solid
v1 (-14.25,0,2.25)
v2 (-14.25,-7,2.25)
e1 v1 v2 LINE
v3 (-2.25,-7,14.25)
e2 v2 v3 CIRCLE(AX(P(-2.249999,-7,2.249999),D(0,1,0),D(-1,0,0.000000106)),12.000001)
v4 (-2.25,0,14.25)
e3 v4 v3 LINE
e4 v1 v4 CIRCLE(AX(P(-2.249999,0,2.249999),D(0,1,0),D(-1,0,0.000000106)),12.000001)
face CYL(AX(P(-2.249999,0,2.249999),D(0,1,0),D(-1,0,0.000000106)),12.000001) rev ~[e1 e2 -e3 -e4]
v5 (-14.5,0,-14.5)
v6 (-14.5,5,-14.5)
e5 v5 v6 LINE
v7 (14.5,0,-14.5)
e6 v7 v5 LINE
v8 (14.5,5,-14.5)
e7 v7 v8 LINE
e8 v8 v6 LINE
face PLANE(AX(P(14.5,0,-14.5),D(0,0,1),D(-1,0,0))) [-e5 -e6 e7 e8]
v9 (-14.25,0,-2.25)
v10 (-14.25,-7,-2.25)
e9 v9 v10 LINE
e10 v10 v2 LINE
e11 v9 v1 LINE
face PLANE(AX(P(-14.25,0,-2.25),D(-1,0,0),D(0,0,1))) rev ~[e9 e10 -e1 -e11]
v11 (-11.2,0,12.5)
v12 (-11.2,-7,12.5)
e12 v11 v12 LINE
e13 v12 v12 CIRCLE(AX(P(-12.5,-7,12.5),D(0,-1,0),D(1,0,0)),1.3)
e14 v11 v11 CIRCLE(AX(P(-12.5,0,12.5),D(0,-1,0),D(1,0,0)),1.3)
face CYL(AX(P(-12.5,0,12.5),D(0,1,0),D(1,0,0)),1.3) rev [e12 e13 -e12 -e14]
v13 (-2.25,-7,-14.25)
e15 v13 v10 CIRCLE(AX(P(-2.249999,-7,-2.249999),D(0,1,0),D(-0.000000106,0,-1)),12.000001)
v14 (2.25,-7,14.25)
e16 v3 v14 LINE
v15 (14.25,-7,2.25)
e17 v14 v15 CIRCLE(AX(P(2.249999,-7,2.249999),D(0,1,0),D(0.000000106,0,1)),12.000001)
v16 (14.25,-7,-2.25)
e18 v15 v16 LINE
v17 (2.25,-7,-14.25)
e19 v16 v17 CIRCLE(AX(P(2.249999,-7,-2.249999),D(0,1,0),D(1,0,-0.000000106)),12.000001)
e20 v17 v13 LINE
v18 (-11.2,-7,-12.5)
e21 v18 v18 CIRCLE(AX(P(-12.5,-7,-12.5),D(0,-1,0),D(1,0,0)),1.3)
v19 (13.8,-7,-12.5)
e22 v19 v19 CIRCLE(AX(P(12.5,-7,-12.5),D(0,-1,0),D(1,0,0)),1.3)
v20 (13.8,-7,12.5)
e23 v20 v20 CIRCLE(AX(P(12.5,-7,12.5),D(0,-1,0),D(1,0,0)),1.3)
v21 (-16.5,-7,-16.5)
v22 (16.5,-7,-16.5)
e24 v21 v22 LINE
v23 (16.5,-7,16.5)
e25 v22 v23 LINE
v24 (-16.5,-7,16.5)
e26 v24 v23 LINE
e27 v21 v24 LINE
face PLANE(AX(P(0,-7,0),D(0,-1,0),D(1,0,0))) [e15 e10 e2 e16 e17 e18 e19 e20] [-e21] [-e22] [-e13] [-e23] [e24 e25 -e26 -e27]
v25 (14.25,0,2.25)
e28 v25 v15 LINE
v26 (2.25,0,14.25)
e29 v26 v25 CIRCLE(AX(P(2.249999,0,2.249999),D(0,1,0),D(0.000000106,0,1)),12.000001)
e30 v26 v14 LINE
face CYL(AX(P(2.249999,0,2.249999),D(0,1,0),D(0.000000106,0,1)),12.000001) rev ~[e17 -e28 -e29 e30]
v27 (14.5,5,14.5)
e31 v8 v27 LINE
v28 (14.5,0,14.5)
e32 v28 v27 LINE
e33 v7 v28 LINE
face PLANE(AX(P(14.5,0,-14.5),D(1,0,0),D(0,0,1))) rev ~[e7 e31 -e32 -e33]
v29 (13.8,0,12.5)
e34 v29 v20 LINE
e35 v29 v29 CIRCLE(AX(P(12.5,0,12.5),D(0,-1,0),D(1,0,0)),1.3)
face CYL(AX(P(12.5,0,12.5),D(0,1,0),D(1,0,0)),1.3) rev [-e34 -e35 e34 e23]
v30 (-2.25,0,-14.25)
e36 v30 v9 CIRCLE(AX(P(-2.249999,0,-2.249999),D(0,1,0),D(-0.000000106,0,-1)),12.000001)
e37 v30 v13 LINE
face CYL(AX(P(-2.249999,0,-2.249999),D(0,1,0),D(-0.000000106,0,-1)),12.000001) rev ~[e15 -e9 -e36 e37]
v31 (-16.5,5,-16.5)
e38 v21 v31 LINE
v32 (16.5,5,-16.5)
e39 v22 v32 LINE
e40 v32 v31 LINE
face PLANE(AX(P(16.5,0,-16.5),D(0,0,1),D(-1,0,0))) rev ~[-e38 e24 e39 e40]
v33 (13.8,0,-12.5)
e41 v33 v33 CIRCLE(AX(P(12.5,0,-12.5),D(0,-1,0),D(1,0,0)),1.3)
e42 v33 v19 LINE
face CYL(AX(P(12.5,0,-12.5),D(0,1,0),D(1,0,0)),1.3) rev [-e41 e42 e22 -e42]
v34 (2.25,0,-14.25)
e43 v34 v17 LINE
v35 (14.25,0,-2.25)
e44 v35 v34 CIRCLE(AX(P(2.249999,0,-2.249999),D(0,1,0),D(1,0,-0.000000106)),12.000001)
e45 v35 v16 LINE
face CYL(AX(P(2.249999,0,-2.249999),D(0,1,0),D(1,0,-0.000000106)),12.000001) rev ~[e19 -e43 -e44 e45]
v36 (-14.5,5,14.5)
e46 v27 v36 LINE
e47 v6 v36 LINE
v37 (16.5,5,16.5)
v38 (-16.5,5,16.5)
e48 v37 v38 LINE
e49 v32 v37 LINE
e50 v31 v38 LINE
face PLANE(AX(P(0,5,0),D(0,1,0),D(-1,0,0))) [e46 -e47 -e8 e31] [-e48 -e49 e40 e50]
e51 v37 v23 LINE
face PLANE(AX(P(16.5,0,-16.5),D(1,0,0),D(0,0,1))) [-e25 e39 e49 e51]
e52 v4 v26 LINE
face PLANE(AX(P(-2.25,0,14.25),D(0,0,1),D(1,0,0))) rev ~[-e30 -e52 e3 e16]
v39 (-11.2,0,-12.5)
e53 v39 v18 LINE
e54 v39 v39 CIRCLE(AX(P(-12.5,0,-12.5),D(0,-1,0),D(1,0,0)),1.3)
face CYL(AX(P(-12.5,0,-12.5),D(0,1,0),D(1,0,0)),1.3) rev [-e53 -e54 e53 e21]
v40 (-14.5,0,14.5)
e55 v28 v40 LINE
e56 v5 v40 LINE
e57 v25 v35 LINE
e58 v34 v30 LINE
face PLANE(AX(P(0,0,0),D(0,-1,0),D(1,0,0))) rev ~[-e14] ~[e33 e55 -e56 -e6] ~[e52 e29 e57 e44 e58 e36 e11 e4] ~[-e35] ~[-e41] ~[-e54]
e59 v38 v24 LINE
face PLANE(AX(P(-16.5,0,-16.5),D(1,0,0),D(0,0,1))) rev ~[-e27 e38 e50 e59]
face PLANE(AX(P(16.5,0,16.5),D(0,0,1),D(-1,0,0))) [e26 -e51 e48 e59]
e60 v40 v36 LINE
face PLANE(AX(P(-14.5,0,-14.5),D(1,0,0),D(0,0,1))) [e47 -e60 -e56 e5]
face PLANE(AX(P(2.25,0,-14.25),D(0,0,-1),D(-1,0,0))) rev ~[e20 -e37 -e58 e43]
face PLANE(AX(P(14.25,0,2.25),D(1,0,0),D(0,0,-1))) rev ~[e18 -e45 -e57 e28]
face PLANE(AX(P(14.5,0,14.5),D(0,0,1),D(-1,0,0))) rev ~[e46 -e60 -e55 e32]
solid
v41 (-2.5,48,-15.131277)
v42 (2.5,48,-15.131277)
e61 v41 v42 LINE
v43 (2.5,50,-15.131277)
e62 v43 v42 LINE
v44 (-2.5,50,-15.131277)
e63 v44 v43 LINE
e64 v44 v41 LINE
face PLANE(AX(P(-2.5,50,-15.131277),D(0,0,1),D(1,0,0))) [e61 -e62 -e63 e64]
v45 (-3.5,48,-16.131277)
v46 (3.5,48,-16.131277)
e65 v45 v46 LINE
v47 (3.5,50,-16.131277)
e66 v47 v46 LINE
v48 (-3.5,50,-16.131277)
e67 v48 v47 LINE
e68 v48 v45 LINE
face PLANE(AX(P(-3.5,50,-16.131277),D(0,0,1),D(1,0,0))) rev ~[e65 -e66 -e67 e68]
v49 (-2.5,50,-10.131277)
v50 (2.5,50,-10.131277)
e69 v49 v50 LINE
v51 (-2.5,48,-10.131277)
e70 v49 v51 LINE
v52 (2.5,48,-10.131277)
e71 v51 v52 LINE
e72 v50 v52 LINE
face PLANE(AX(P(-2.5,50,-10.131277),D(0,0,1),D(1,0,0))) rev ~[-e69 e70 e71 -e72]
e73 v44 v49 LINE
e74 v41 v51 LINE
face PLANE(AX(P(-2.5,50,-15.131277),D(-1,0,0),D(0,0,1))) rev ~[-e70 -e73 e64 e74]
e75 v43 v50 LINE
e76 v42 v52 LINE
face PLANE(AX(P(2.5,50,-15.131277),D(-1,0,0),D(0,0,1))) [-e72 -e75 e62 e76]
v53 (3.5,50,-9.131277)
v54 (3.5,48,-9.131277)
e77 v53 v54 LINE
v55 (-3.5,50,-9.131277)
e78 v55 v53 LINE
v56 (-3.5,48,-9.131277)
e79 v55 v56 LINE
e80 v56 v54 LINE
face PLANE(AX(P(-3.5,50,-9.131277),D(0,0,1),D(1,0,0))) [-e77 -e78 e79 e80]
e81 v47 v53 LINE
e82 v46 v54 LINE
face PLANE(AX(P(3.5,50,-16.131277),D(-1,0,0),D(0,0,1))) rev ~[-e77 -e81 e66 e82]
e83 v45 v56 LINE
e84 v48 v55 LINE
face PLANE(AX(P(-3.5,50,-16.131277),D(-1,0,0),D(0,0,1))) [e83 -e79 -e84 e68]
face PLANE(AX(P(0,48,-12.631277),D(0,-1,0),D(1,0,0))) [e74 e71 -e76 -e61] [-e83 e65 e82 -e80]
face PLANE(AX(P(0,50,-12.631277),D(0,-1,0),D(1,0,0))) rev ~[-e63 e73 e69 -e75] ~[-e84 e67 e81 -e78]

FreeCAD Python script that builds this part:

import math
import FreeCAD as App
import Part
import Sketcher
Q = App.Units.Quantity

doc = App.newDocument("Part")
body = doc.addObject("PartDesign::Body", "Body")

sketch1 = body.newObject("Sketcher::SketchObject", "Sketch")
sketch1.AttachmentSupport = (doc.getObject("XZ_Plane"), [""])
sketch1.MapMode = "FlatFace"
sketch1.addGeometry([
    Part.LineSegment(App.Vector(-16.5, 16.5, 0), App.Vector(-16.5, -16.5, 0)),
    Part.LineSegment(App.Vector(-16.5, -16.5, 0), App.Vector(16.5, -16.5, 0)),
    Part.LineSegment(App.Vector(16.5, -16.5, 0), App.Vector(16.5, 16.5, 0)),
    Part.LineSegment(App.Vector(16.5, 16.5, 0), App.Vector(-16.5, 16.5, 0)),
    Part.Circle(App.Vector(-12.5, -12.5, 0), App.Vector(0, 0, 1), 1.3),
    Part.Circle(App.Vector(12.5, -12.5, 0), App.Vector(0, 0, 1), 1.3),
    Part.Circle(App.Vector(-12.5, 12.5, 0), App.Vector(0, 0, 1), 1.3),
    Part.LineSegment(App.Vector(14.2, 2.2, 0), App.Vector(14.2, -2.2, 0)),
    Part.ArcOfCircle(Part.Circle(App.Vector(2.2, -2.2, 0), App.Vector(0, 0, 1), 12), math.radians(-90), math.radians(0)),
    Part.LineSegment(App.Vector(2.2, -14.2, 0), App.Vector(-2.2, -14.2, 0)),
    Part.ArcOfCircle(Part.Circle(App.Vector(-2.2, -2.2, 0), App.Vector(0, 0, 1), 12), math.radians(-180), math.radians(-90)),
    Part.LineSegment(App.Vector(-14.2, -2.2, 0), App.Vector(-14.2, 2.2, 0)),
    Part.ArcOfCircle(Part.Circle(App.Vector(-2.2, 2.2, 0), App.Vector(0, 0, 1), 12), math.radians(90), math.radians(180)),
    Part.LineSegment(App.Vector(-2.2, 14.2, 0), App.Vector(2.2, 14.2, 0)),
    Part.ArcOfCircle(Part.Circle(App.Vector(2.2, 2.2, 0), App.Vector(0, 0, 1), 12), math.radians(0), math.radians(90)),
    Part.Circle(App.Vector(12.5, 12.5, 0), App.Vector(0, 0, 1), 1.3),
], False)
sketch1.addConstraint([
    Sketcher.Constraint("Coincident", 0, 2, 1, 1),
    Sketcher.Constraint("Coincident", 1, 2, 2, 1),
    Sketcher.Constraint("Coincident", 2, 2, 3, 1),
    Sketcher.Constraint("Coincident", 3, 2, 0, 1),
    Sketcher.Constraint("Tangent", 7, 2, 8, 2),
    Sketcher.Constraint("Tangent", 8, 1, 9, 1),
    Sketcher.Constraint("Tangent", 9, 2, 10, 2),
    Sketcher.Constraint("Tangent", 10, 1, 11, 1),
    Sketcher.Constraint("Tangent", 11, 2, 12, 2),
    Sketcher.Constraint("Tangent", 12, 1, 13, 1),
    Sketcher.Constraint("Tangent", 13, 2, 14, 2),
    Sketcher.Constraint("Tangent", 14, 1, 7, 1),
    Sketcher.Constraint("Vertical", 0),
    Sketcher.Constraint("Horizontal", 1),
    Sketcher.Constraint("Vertical", 2),
    Sketcher.Constraint("Horizontal", 3),
    Sketcher.Constraint("Vertical", 7),
    Sketcher.Constraint("Horizontal", 9),
    Sketcher.Constraint("Vertical", 11),
    Sketcher.Constraint("Horizontal", 13),
    Sketcher.Constraint("Equal", 4, 5),
    Sketcher.Constraint("Equal", 5, 6),
    Sketcher.Constraint("Equal", 8, 10),
    Sketcher.Constraint("Equal", 10, 12),
    Sketcher.Constraint("Equal", 12, 14),
    Sketcher.Constraint("Equal", 6, 15),
    Sketcher.Constraint("Symmetric", 5, 3, 6, 3, -1, 1),
    Sketcher.Constraint("Symmetric", 8, 3, 12, 3, -1, 1),
    Sketcher.Constraint("Symmetric", 4, 3, 15, 3, -1, 1),
    Sketcher.Constraint("Symmetric", 0, 2, 2, 2, -1, 1),
    Sketcher.Constraint("Symmetric", 4, 3, 5, 3, -2),
    Sketcher.Constraint("Equal", 3, 0),
    Sketcher.Constraint("Equal", 13, 7),
    Sketcher.Constraint("Radius", 8, Q("12.000001 mm")),
    Sketcher.Constraint("Diameter", 4, Q("2.6 mm")),
    Sketcher.Constraint("DistanceX", 1, 1, 1, 2, Q("33 mm")),
    Sketcher.Constraint("DistanceX", 9, 2, 9, 1, Q("4.5 mm")),
    Sketcher.Constraint("DistanceX", 4, 3, 5, 3, Q("25 mm")),
    Sketcher.Constraint("DistanceY", 4, 3, 6, 3, Q("25 mm")),
])
pad1 = body.newObject("PartDesign::Pad", "Pad")
pad1.Profile = sketch1
pad1.Length = 7

sketch2 = body.newObject("Sketcher::SketchObject", "Sketch001")
sketch2.AttachmentSupport = (doc.getObject("XZ_Plane"), [""])
sketch2.MapMode = "FlatFace"
sketch2.addGeometry([
    Part.LineSegment(App.Vector(16, 16, 0), App.Vector(16, -16, 0)),
    Part.LineSegment(App.Vector(16, -16, 0), App.Vector(-16, -16, 0)),
    Part.LineSegment(App.Vector(-16, -16, 0), App.Vector(-16, 16, 0)),
    Part.LineSegment(App.Vector(-16, 16, 0), App.Vector(16, 16, 0)),
    Part.LineSegment(App.Vector(-14, -14, 0), App.Vector(14, -14, 0)),
    Part.LineSegment(App.Vector(14, -14, 0), App.Vector(14, 14, 0)),
    Part.LineSegment(App.Vector(14, 14, 0), App.Vector(-14, 14, 0)),
    Part.LineSegment(App.Vector(-14, 14, 0), App.Vector(-14, -14, 0)),
], False)
sketch2.addConstraint([
    Sketcher.Constraint("Coincident", 0, 2, 1, 1),
    Sketcher.Constraint("Coincident", 1, 2, 2, 1),
    Sketcher.Constraint("Coincident", 2, 2, 3, 1),
    Sketcher.Constraint("Coincident", 3, 2, 0, 1),
    Sketcher.Constraint("Coincident", 4, 2, 5, 1),
    Sketcher.Constraint("Coincident", 5, 2, 6, 1),
    Sketcher.Constraint("Coincident", 6, 2, 7, 1),
    Sketcher.Constraint("Coincident", 7, 2, 4, 1),
    Sketcher.Constraint("Vertical", 0),
    Sketcher.Constraint("Horizontal", 1),
    Sketcher.Constraint("Vertical", 2),
    Sketcher.Constraint("Horizontal", 3),
    Sketcher.Constraint("Horizontal", 4),
    Sketcher.Constraint("Vertical", 5),
    Sketcher.Constraint("Horizontal", 6),
    Sketcher.Constraint("Vertical", 7),
    Sketcher.Constraint("Symmetric", 0, 2, 2, 2, -1, 1),
    Sketcher.Constraint("Symmetric", 4, 2, 6, 2, -1, 1),
    Sketcher.Constraint("Equal", 3, 0),
    Sketcher.Constraint("Equal", 6, 5),
    Sketcher.Constraint("DistanceX", 1, 2, 1, 1, Q("33 mm")),
    Sketcher.Constraint("DistanceX", 4, 1, 4, 2, Q("29 mm")),
])
pad2 = body.newObject("PartDesign::Pad", "Pad001")
pad2.Profile = sketch2
pad2.Length = 5
pad2.Reversed = True
body2 = doc.addObject("PartDesign::Body", "Body001")

sketch3 = body2.newObject("Sketcher::SketchObject", "Sketch002")
sketch3.AttachmentSupport = (doc.getObject("XZ_Plane001"), [""])
sketch3.MapMode = "FlatFace"
sketch3.AttachmentOffset = App.Placement(App.Vector(0, 0, -50), App.Rotation())
sketch3.addGeometry([
    Part.LineSegment(App.Vector(-4, -9, 0), App.Vector(-4, -16, 0)),
    Part.LineSegment(App.Vector(-4, -16, 0), App.Vector(4, -16, 0)),
    Part.LineSegment(App.Vector(4, -16, 0), App.Vector(4, -9, 0)),
    Part.LineSegment(App.Vector(4, -9, 0), App.Vector(-4, -9, 0)),
    Part.LineSegment(App.Vector(2, -15, 0), App.Vector(-2, -15, 0)),
    Part.LineSegment(App.Vector(-2, -15, 0), App.Vector(-2, -10, 0)),
    Part.LineSegment(App.Vector(-2, -10, 0), App.Vector(2, -10, 0)),
    Part.LineSegment(App.Vector(2, -10, 0), App.Vector(2, -15, 0)),
], False)
sketch3.addConstraint([
    Sketcher.Constraint("Coincident", 0, 2, 1, 1),
    Sketcher.Constraint("Coincident", 1, 2, 2, 1),
    Sketcher.Constraint("Coincident", 2, 2, 3, 1),
    Sketcher.Constraint("Coincident", 3, 2, 0, 1),
    Sketcher.Constraint("Coincident", 4, 2, 5, 1),
    Sketcher.Constraint("Coincident", 5, 2, 6, 1),
    Sketcher.Constraint("Coincident", 6, 2, 7, 1),
    Sketcher.Constraint("Coincident", 7, 2, 4, 1),
    Sketcher.Constraint("Vertical", 0),
    Sketcher.Constraint("Horizontal", 1),
    Sketcher.Constraint("Vertical", 2),
    Sketcher.Constraint("Horizontal", 3),
    Sketcher.Constraint("Horizontal", 4),
    Sketcher.Constraint("Vertical", 5),
    Sketcher.Constraint("Horizontal", 6),
    Sketcher.Constraint("Vertical", 7),
    Sketcher.Constraint("Equal", 3, 0),
    Sketcher.Constraint("Equal", 6, 5),
    Sketcher.Constraint("DistanceX", 1, 1, 1, 2, Q("7 mm")),
    Sketcher.Constraint("DistanceX", 4, 2, 4, 1, Q("5 mm")),
    Sketcher.Constraint("DistanceX", 0, 2, 4, 2, Q("1 mm")),
    Sketcher.Constraint("DistanceY", 0, 2, 4, 2, Q("1 mm")),
    Sketcher.Constraint("DistanceX", 0, 2, -1, 1, Q("3.5 mm")),
    Sketcher.Constraint("DistanceY", 0, 2, -1, 1, Q("16.131277 mm")),
])
pad3 = body2.newObject("PartDesign::Pad", "Pad002")
pad3.Profile = sketch3
pad3.Length = 2

doc.recompute()
